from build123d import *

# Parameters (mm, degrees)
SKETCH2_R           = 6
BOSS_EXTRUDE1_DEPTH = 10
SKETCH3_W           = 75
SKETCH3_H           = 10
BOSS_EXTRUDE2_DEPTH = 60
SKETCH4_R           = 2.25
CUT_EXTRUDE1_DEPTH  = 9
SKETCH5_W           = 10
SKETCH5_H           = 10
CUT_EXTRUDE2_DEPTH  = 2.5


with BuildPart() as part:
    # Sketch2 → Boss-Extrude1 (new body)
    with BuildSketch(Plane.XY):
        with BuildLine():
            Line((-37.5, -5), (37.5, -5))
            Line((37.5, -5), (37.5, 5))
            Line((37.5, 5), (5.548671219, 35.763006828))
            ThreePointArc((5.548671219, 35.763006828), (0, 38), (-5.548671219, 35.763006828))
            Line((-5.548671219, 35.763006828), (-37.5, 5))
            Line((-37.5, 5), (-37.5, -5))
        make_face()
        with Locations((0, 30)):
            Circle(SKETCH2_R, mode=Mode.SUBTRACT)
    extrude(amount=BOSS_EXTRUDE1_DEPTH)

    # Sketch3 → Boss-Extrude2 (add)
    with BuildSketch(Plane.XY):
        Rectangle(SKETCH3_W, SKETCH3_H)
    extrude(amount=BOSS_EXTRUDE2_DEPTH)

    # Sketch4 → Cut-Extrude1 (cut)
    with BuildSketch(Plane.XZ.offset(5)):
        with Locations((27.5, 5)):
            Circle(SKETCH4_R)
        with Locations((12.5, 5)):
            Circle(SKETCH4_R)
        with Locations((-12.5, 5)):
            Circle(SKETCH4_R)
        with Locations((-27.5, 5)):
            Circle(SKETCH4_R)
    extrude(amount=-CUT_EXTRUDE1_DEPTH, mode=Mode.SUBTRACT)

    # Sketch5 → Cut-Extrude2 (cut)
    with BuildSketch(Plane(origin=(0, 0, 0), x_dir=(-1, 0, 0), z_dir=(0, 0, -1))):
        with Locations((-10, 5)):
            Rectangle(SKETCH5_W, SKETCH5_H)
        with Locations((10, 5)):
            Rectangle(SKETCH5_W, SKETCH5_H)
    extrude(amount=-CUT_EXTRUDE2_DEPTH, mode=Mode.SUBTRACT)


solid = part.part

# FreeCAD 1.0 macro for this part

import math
import FreeCAD as App
import Part
import Sketcher
from FreeCAD import Vector

doc = App.newDocument("Part")
body = doc.addObject("PartDesign::Body", "Body")

# Sketch on XY plane
sketch1 = body.newObject("Sketcher::SketchObject", "Sketch")
sketch1.AttachmentSupport = (doc.getObject("XY_Plane"), [""])
sketch1.MapMode = "FlatFace"
sketch1.addGeometry(Part.LineSegment(Vector(-37.5, -5, 0), Vector(37.5, -5, 0)), False)
sketch1.addGeometry(Part.LineSegment(Vector(37.5, -5, 0), Vector(37.5, 5, 0)), False)
sketch1.addGeometry(Part.LineSegment(Vector(37.5, 5, 0), Vector(5.548671, 35.763007, 0)), False)
sketch1.addGeometry(Part.ArcOfCircle(Part.Circle(Vector(0, 30, 0), Vector(0, 0, 1), 8), math.radians(46.08552), math.radians(133.91448)), False)
sketch1.addGeometry(Part.LineSegment(Vector(-5.548671, 35.763007, 0), Vector(-37.5, 5, 0)), False)
sketch1.addGeometry(Part.LineSegment(Vector(-37.5, 5, 0), Vector(-37.5, -5, 0)), False)
sketch1.addGeometry(Part.Circle(Vector(0, 30, 0), Vector(0, 0, 1), 6), False)
sketch1.addConstraint(Sketcher.Constraint("Coincident", 0, 2, 1, 1))
sketch1.addConstraint(Sketcher.Constraint("Coincident", 1, 2, 2, 1))
sketch1.addConstraint(Sketcher.Constraint("Tangent", 2, 2, 3, 1))
sketch1.addConstraint(Sketcher.Constraint("Tangent", 3, 2, 4, 1))
sketch1.addConstraint(Sketcher.Constraint("Coincident", 4, 2, 5, 1))
sketch1.addConstraint(Sketcher.Constraint("Coincident", 5, 2, 0, 1))
sketch1.addConstraint(Sketcher.Constraint("Horizontal", 0))
sketch1.addConstraint(Sketcher.Constraint("Vertical", 1))
sketch1.addConstraint(Sketcher.Constraint("Vertical", 5))
sketch1.addConstraint(Sketcher.Constraint("Coincident", 6, 3, 3, 3))
sketch1.addConstraint(Sketcher.Constraint("Symmetric", 0, 2, 4, 2, -1, 1))
sketch1.addConstraint(Sketcher.Constraint("Symmetric", 2, 2, 3, 2, -2))
sketch1.addConstraint(Sketcher.Constraint("Diameter", 6, 12.0))
sketch1.addConstraint(Sketcher.Constraint("Radius", 3, 8.0))
sketch1.addConstraint(Sketcher.Constraint("DistanceX", 0, 1, 0, 2, 75.0))
sketch1.addConstraint(Sketcher.Constraint("DistanceY", 1, 1, 1, 2, 10.0))
sketch1.addConstraint(Sketcher.Constraint("DistanceY", -1, 1, 3, 3, 30.0))
pad1 = body.newObject("PartDesign::Pad", "Pad")
pad1.Profile = sketch1
pad1.Length = 10

# Sketch on XY plane
sketch2 = body.newObject("Sketcher::SketchObject", "Sketch001")
sketch2.AttachmentSupport = (doc.getObject("XY_Plane"), [""])
sketch2.MapMode = "FlatFace"
sketch2.addGeometry(Part.LineSegment(Vector(-37.5, 5, 0), Vector(-37.5, -5, 0)), False)
sketch2.addGeometry(Part.LineSegment(Vector(-37.5, -5, 0), Vector(37.5, -5, 0)), False)
sketch2.addGeometry(Part.LineSegment(Vector(37.5, -5, 0), Vector(37.5, 5, 0)), False)
sketch2.addGeometry(Part.LineSegment(Vector(37.5, 5, 0), Vector(-37.5, 5, 0)), False)
sketch2.addConstraint(Sketcher.Constraint("Coincident", 0, 2, 1, 1))
sketch2.addConstraint(Sketcher.Constraint("Coincident", 1, 2, 2, 1))
sketch2.addConstraint(Sketcher.Constraint("Coincident", 2, 2, 3, 1))
sketch2.addConstraint(Sketcher.Constraint("Coincident", 3, 2, 0, 1))
sketch2.addConstraint(Sketcher.Constraint("Vertical", 0))
sketch2.addConstraint(Sketcher.Constraint("Horizontal", 1))
sketch2.addConstraint(Sketcher.Constraint("Vertical", 2))
sketch2.addConstraint(Sketcher.Constraint("Horizontal", 3))
sketch2.addConstraint(Sketcher.Constraint("Symmetric", 0, 2, 2, 2, -1, 1))
sketch2.addConstraint(Sketcher.Constraint("DistanceX", 1, 1, 1, 2, 75.0))
sketch2.addConstraint(Sketcher.Constraint("DistanceY", 0, 2, 0, 1, 10.0))
pad2 = body.newObject("PartDesign::Pad", "Pad001")
pad2.Profile = sketch2
pad2.Length = 60

# Sketch on XZ plane
sketch3 = body.newObject("Sketcher::SketchObject", "Sketch002")
sketch3.AttachmentSupport = (doc.getObject("XZ_Plane"), [""])
sketch3.MapMode = "FlatFace"
sketch3.AttachmentOffset = App.Placement(Vector(0, 0, 5), App.Rotation())
sketch3.addGeometry(Part.Circle(Vector(27.5, 5, 0), Vector(0, 0, 1), 2.25), False)
sketch3.addGeometry(Part.Circle(Vector(12.5, 5, 0), Vector(0, 0, 1), 2.25), False)
sketch3.addGeometry(Part.Circle(Vector(-12.5, 5, 0), Vector(0, 0, 1), 2.25), False)
sketch3.addGeometry(Part.Circle(Vector(-27.5, 5, 0), Vector(0, 0, 1), 2.25), False)
sketch3.addConstraint(Sketcher.Constraint("Equal", 0, 1))
sketch3.addConstraint(Sketcher.Constraint("Equal", 1, 2))
sketch3.addConstraint(Sketcher.Constraint("Equal", 2, 3))
sketch3.addConstraint(Sketcher.Constraint("Symmetric", 1, 3, 2, 3, -2))
sketch3.addConstraint(Sketcher.Constraint("Symmetric", 0, 3, 3, 3, -2))
sketch3.addConstraint(Sketcher.Constraint("Horizontal", 0, 3, 1, 3))
sketch3.addConstraint(Sketcher.Constraint("Diameter", 0, 4.5))
sketch3.addConstraint(Sketcher.Constraint("DistanceY", -1, 1, 0, 3, 5.0))
sketch3.addConstraint(Sketcher.Constraint("DistanceX", 1, 3, 0, 3, 15.0))
sketch3.addConstraint(Sketcher.Constraint("DistanceX", 2, 3, 1, 3, 25.0))
pocket1 = body.newObject("PartDesign::Pocket", "Pocket")
pocket1.Profile = sketch3
pocket1.Length = 9

# Sketch on XY plane
sketch4 = body.newObject("Sketcher::SketchObject", "Sketch003")
sketch4.AttachmentSupport = (doc.getObject("XY_Plane"), [""])
sketch4.MapMode = "FlatFace"
sketch4.addGeometry(Part.LineSegment(Vector(15, 10, 0), Vector(15, 0, 0)), False)
sketch4.addGeometry(Part.LineSegment(Vector(15, 0, 0), Vector(5, 0, 0)), False)
sketch4.addGeometry(Part.LineSegment(Vector(5, 0, 0), Vector(5, 10, 0)), False)
sketch4.addGeometry(Part.LineSegment(Vector(5, 10, 0), Vector(15, 10, 0)), False)
sketch4.addGeometry(Part.LineSegment(Vector(-5, 10, 0), Vector(-5, 0, 0)), False)
sketch4.addGeometry(Part.LineSegment(Vector(-5, 0, 0), Vector(-15, 0, 0)), False)
sketch4.addGeometry(Part.LineSegment(Vector(-15, 0, 0), Vector(-15, 10, 0)), False)
sketch4.addGeometry(Part.LineSegment(Vector(-15, 10, 0), Vector(-5, 10, 0)), False)
sketch4.addConstraint(Sketcher.Constraint("Coincident", 0, 2, 1, 1))
sketch4.addConstraint(Sketcher.Constraint("Coincident", 1, 2, 2, 1))
sketch4.addConstraint(Sketcher.Constraint("Coincident", 2, 2, 3, 1))
sketch4.addConstraint(Sketcher.Constraint("Coincident", 3, 2, 0, 1))
sketch4.addConstraint(Sketcher.Constraint("Coincident", 4, 2, 5, 1))
sketch4.addConstraint(Sketcher.Constraint("Coincident", 5, 2, 6, 1))
sketch4.addConstraint(Sketcher.Constraint("Coincident", 6, 2, 7, 1))
sketch4.addConstraint(Sketcher.Constraint("Coincident", 7, 2, 4, 1))
sketch4.addConstraint(Sketcher.Constraint("Vertical", 0))
sketch4.addConstraint(Sketcher.Constraint("Horizontal", 1))
sketch4.addConstraint(Sketcher.Constraint("Vertical", 2))
sketch4.addConstraint(Sketcher.Constraint("Horizontal", 3))
sketch4.addConstraint(Sketcher.Constraint("Vertical", 4))
sketch4.addConstraint(Sketcher.Constraint("Horizontal", 5))
sketch4.addConstraint(Sketcher.Constraint("Vertical", 6))
sketch4.addConstraint(Sketcher.Constraint("Horizontal", 7))
sketch4.addConstraint(Sketcher.Constraint("Symmetric", 1, 2, 4, 2, -1, 1))
sketch4.addConstraint(Sketcher.Constraint("Symmetric", 0, 2, 5, 2, -2))
sketch4.addConstraint(Sketcher.Constraint("Horizontal", 3, 2, 6, 2))
sketch4.addConstraint(Sketcher.Constraint("Equal", 7, 0))
sketch4.addConstraint(Sketcher.Constraint("DistanceX", 1, 2, 1, 1, 10.0))
sketch4.addConstraint(Sketcher.Constraint("DistanceX", -1, 1, 0, 2, 15.0))
pocket2 = body.newObject("PartDesign::Pocket", "Pocket001")
pocket2.Profile = sketch4
pocket2.Length = 2.5
pocket2.Reversed = True

doc.recompute()
